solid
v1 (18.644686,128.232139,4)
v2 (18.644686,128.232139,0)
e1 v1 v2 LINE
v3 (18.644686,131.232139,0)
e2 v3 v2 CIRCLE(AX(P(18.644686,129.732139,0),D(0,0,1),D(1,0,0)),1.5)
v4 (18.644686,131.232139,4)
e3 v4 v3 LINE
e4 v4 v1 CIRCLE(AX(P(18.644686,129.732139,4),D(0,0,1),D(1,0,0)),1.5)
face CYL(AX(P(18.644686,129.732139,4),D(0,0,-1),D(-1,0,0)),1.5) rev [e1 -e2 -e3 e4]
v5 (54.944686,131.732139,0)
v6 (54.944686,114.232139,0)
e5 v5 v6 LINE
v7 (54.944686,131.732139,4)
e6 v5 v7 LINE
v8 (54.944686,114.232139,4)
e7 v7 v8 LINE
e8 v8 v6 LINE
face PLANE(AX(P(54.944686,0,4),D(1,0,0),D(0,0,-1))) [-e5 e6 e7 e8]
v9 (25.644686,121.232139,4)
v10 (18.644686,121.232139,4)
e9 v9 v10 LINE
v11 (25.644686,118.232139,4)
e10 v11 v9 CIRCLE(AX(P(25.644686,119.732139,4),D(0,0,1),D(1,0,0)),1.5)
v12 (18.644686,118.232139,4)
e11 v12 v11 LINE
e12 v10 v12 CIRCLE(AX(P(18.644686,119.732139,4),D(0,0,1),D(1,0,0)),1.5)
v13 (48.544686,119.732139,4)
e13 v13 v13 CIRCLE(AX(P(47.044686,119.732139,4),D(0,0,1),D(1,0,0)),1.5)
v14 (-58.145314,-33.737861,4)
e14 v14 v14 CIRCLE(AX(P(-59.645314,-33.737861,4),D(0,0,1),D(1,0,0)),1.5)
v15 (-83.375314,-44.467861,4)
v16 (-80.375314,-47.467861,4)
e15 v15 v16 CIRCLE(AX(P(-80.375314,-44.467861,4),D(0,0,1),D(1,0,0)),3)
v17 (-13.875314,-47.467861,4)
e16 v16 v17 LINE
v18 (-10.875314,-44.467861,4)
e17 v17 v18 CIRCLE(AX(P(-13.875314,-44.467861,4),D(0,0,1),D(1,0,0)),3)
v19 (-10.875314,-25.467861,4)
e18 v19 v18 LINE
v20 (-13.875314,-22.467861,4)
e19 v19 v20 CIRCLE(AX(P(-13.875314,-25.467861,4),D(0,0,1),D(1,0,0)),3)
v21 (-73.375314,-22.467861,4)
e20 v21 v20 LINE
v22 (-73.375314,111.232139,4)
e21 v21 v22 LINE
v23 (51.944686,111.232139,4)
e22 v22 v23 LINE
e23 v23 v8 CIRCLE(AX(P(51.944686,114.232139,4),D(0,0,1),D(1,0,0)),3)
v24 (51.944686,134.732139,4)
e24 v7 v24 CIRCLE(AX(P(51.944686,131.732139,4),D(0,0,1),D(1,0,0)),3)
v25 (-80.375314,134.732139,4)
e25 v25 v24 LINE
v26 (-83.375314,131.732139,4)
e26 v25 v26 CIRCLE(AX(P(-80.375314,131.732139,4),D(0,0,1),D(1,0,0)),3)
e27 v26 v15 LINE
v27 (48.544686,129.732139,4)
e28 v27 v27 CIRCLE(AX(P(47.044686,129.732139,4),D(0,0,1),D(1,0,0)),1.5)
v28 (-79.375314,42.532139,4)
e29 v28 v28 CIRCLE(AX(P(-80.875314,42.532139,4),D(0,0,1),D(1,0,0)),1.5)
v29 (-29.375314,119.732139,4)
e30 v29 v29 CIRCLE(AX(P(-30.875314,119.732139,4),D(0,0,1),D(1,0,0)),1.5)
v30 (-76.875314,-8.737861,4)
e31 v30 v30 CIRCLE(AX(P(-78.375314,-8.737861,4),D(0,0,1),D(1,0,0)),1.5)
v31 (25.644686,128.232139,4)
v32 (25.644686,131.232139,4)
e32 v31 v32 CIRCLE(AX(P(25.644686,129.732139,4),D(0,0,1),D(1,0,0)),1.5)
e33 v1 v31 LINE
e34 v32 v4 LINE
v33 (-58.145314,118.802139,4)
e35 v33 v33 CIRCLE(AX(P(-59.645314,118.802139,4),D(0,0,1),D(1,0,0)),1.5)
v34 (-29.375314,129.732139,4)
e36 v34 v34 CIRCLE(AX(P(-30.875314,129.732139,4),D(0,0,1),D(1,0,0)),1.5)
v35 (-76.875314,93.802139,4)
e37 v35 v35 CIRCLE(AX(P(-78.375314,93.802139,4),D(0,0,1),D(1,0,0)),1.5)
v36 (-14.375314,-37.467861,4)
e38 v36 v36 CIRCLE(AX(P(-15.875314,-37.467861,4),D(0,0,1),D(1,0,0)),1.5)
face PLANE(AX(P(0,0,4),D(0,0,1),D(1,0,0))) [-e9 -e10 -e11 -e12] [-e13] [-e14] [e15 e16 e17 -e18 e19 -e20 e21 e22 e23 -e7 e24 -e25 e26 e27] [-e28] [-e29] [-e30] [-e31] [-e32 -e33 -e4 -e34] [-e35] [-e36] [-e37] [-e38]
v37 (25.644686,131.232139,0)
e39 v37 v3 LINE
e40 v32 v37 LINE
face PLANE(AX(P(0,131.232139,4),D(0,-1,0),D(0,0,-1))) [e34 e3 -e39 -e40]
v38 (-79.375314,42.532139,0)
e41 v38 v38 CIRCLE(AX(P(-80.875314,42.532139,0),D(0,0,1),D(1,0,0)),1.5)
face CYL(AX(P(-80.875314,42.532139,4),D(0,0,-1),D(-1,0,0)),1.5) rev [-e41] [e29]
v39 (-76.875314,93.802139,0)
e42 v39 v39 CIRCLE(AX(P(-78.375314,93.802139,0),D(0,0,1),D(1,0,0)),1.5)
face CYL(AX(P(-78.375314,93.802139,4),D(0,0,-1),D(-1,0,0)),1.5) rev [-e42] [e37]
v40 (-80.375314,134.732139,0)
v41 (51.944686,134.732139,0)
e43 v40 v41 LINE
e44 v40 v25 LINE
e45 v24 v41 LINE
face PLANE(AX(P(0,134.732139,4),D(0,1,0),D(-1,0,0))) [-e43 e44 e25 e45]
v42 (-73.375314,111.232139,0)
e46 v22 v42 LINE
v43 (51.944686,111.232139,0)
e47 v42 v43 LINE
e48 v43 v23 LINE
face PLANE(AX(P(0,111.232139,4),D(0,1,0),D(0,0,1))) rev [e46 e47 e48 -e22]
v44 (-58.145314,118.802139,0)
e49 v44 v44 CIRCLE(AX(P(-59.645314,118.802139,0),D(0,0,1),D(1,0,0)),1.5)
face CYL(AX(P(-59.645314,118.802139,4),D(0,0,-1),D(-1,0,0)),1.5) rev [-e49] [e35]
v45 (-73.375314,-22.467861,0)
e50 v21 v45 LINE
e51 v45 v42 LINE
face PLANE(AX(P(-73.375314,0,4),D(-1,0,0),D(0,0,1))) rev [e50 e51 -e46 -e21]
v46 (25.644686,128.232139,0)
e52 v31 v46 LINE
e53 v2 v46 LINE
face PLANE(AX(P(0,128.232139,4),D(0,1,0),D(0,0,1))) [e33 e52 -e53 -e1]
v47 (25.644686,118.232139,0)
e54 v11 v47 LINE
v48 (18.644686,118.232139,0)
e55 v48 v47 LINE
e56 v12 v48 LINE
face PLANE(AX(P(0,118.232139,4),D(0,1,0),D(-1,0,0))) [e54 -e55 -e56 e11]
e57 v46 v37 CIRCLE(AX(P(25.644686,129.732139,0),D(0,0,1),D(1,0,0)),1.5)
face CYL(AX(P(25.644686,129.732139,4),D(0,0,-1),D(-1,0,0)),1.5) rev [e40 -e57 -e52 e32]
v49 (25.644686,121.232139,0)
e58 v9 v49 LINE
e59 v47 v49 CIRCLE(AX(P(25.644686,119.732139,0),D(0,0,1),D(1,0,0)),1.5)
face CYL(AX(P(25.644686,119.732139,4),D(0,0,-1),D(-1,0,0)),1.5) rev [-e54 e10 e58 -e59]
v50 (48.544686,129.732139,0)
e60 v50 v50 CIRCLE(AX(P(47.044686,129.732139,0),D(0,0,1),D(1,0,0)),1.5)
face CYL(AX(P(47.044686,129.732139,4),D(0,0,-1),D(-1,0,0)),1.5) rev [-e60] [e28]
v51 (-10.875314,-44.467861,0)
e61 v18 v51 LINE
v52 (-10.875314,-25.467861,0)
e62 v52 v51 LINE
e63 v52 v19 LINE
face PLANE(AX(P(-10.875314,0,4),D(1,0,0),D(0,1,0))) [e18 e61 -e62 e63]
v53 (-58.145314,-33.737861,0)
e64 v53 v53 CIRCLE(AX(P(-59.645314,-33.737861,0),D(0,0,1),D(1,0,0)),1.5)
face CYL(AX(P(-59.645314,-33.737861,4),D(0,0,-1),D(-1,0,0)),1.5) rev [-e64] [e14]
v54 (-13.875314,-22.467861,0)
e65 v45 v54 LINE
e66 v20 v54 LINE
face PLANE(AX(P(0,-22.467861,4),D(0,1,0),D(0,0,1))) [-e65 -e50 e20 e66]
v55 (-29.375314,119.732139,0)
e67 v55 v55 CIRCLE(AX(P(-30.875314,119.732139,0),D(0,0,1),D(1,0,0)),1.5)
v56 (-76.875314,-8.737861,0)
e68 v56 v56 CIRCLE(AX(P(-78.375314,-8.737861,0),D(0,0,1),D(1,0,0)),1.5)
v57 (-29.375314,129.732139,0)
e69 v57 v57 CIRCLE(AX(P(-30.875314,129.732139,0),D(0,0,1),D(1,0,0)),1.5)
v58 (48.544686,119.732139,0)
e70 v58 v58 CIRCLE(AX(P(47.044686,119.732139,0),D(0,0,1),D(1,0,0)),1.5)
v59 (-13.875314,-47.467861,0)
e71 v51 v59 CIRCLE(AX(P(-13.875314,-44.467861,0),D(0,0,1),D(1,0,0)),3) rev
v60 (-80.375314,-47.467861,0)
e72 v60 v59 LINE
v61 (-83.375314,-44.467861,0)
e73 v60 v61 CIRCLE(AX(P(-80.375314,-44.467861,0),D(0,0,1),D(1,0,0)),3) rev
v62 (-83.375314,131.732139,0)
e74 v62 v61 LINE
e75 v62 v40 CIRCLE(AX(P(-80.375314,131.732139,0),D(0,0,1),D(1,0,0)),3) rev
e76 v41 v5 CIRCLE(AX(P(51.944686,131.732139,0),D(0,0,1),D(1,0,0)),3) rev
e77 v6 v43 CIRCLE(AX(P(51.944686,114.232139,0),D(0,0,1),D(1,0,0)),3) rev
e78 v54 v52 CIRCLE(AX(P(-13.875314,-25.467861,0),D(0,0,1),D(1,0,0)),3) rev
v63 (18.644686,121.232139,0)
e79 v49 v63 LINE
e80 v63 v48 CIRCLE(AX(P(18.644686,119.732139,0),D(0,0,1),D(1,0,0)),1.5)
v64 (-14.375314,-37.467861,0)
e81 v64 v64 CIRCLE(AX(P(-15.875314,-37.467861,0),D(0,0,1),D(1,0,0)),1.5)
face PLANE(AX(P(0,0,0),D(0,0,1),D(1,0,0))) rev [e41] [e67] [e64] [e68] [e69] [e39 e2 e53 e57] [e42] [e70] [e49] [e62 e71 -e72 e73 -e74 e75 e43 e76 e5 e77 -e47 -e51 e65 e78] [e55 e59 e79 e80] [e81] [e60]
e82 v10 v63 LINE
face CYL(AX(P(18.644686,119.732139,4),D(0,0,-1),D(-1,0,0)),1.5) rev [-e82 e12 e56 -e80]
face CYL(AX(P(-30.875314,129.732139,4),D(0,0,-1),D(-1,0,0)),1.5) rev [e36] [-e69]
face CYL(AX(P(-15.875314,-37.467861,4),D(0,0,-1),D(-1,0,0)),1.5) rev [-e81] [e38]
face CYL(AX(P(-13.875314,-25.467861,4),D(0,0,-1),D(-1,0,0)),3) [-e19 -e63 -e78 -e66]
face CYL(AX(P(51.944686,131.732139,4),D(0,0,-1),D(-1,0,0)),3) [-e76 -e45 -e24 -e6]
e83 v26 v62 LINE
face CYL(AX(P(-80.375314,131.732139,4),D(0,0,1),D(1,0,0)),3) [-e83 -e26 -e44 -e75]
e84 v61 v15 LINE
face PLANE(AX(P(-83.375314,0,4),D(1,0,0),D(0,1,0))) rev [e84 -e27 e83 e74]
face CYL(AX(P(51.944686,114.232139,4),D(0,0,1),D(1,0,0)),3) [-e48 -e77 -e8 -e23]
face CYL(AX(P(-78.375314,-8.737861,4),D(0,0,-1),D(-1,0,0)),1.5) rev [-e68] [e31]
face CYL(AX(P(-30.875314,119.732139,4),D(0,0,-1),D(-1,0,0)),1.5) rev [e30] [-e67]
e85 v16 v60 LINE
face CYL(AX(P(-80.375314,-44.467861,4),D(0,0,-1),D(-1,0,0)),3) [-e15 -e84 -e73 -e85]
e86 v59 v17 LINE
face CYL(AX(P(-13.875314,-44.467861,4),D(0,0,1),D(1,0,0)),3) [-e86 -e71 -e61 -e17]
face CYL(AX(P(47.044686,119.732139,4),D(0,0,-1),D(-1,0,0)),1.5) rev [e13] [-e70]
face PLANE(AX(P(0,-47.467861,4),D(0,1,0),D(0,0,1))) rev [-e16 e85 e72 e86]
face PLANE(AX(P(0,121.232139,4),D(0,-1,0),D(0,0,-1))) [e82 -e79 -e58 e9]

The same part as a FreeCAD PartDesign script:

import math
import FreeCAD as App
import Part
import Sketcher
from FreeCAD import Vector
Q = App.Units.Quantity


def edges_at(feature, points):
    """Names of the edges that pass closest to the given points."""
    edges = feature.Shape.Edges
    near = lambda p: min(range(len(edges)), key=lambda i: edges[i].distToShape(Part.Vertex(*p))[0])
    return sorted({f"Edge{near(p) + 1}" for p in points})


def add_polygon(sketch, points):
    """Adds a closed chain of lines whose ends are joined by coincident constraints."""
    first, n = sketch.GeometryCount, len(points)
    for a, b in zip(points, points[1:] + points[:1]):
        sketch.addGeometry(Part.LineSegment(App.Vector(*a, 0), App.Vector(*b, 0)), False)
    for i in range(n):
        sketch.addConstraint(Sketcher.Constraint("Coincident", first + i, 2, first + (i + 1) % n, 1))

doc = App.newDocument("Part")
body = doc.addObject("PartDesign::Body", "Body")

sketch1 = body.newObject("Sketcher::SketchObject", "Sketch")
sketch1.AttachmentSupport = (doc.getObject("XY_Plane"), [""])
sketch1.MapMode = "FlatFace"
add_polygon(sketch1, [(-83.375314, 134.732139), (-83.375314, -47.467861), (-10.875314, -47.467861), (-10.875314, -22.467861), (-73.375314, -22.467861), (-73.375314, 111.232139), (54.944686, 111.232139), (54.944686, 134.732139)])
sketch1.addGeometry(Part.Circle(Vector(-59.645314, -33.737861, 0), Vector(0, 0, 1), 1.5), False)
sketch1.addGeometry(Part.Circle(Vector(-78.375314, -8.737861, 0), Vector(0, 0, 1), 1.5), False)
sketch1.addGeometry(Part.Circle(Vector(-80.875314, 42.532139, 0), Vector(0, 0, 1), 1.5), False)
sketch1.addGeometry(Part.Circle(Vector(-15.875314, -37.467861, 0), Vector(0, 0, 1), 1.5), False)
sketch1.addGeometry(Part.Circle(Vector(-78.375314, 93.802139, 0), Vector(0, 0, 1), 1.5), False)
sketch1.addGeometry(Part.Circle(Vector(-59.645314, 118.802139, 0), Vector(0, 0, 1), 1.5), False)
sketch1.addGeometry(Part.Circle(Vector(-30.875314, 119.732139, 0), Vector(0, 0, 1), 1.5), False)
sketch1.addGeometry(Part.Circle(Vector(-30.875314, 129.732139, 0), Vector(0, 0, 1), 1.5), False)
sketch1.addGeometry(Part.ArcOfCircle(Part.Circle(Vector(25.644686, 119.732139, 0), Vector(0, 0, 1), 1.5), math.radians(-90), math.radians(90)), False)
sketch1.addGeometry(Part.LineSegment(Vector(25.644686, 118.232139, 0), Vector(18.644686, 118.232139, 0)), False)
sketch1.addGeometry(Part.ArcOfCircle(Part.Circle(Vector(18.644686, 119.732139, 0), Vector(0, 0, 1), 1.5), math.radians(90), math.radians(270)), False)
sketch1.addGeometry(Part.LineSegment(Vector(18.644686, 121.232139, 0), Vector(25.644686, 121.232139, 0)), False)
sketch1.addGeometry(Part.LineSegment(Vector(18.644686, 131.232139, 0), Vector(25.644686, 131.232139, 0)), False)
sketch1.addGeometry(Part.ArcOfCircle(Part.Circle(Vector(25.644686, 129.732139, 0), Vector(0, 0, 1), 1.5), math.radians(-90), math.radians(90)), False)
sketch1.addGeometry(Part.LineSegment(Vector(25.644686, 128.232139, 0), Vector(18.644686, 128.232139, 0)), False)
sketch1.addGeometry(Part.ArcOfCircle(Part.Circle(Vector(18.644686, 129.732139, 0), Vector(0, 0, 1), 1.5), math.radians(90), math.radians(270)), False)
sketch1.addGeometry(Part.Circle(Vector(47.044686, 119.732139, 0), Vector(0, 0, 1), 1.5), False)
sketch1.addGeometry(Part.Circle(Vector(47.044686, 129.732139, 0), Vector(0, 0, 1), 1.5), False)
sketch1.addConstraint([
    Sketcher.Constraint("Tangent", 16, 1, 17, 1),
    Sketcher.Constraint("Tangent", 17, 2, 18, 2),
    Sketcher.Constraint("Tangent", 18, 1, 19, 1),
    Sketcher.Constraint("Tangent", 19, 2, 16, 2),
    Sketcher.Constraint("Tangent", 20, 2, 21, 2),
    Sketcher.Constraint("Tangent", 21, 1, 22, 1),
    Sketcher.Constraint("Tangent", 22, 2, 23, 2),
    Sketcher.Constraint("Tangent", 23, 1, 20, 1),
    Sketcher.Constraint("Vertical", 0),
    Sketcher.Constraint("Horizontal", 1),
    Sketcher.Constraint("Vertical", 2),
    Sketcher.Constraint("Horizontal", 3),
    Sketcher.Constraint("Vertical", 4),
    Sketcher.Constraint("Horizontal", 5),
    Sketcher.Constraint("Vertical", 6),
    Sketcher.Constraint("Horizontal", 7),
    Sketcher.Constraint("Horizontal", 17),
    Sketcher.Constraint("Horizontal", 19),
    Sketcher.Constraint("Horizontal", 20),
    Sketcher.Constraint("Horizontal", 22),
    Sketcher.Constraint("Equal", 8, 9),
    Sketcher.Constraint("Equal", 9, 10),
    Sketcher.Constraint("Equal", 10, 11),
    Sketcher.Constraint("Equal", 11, 12),
    Sketcher.Constraint("Equal", 12, 13),
    Sketcher.Constraint("Equal", 13, 14),
    Sketcher.Constraint("Equal", 14, 15),
    Sketcher.Constraint("Equal", 15, 16),
    Sketcher.Constraint("Equal", 18, 21),
    Sketcher.Constraint("Equal", 23, 24),
    Sketcher.Constraint("Equal", 24, 25),
    Sketcher.Constraint("Horizontal", 14, 3, 16, 3),
    Sketcher.Constraint("Horizontal", 15, 3, 21, 3),
    Sketcher.Constraint("Horizontal", 18, 3, 24, 3),
    Sketcher.Constraint("Horizontal", 23, 3, 25, 3),
    Sketcher.Constraint("Vertical", 9, 3, 12, 3),
    Sketcher.Constraint("Vertical", 8, 3, 13, 3),
    Sketcher.Constraint("Vertical", 14, 3, 15, 3),
    Sketcher.Constraint("Vertical", 16, 3, 21, 3),
    Sketcher.Constraint("Vertical", 18, 3, 23, 3),
    Sketcher.Constraint("Vertical", 24, 3, 25, 3),
    Sketcher.Constraint("Diameter", 8, Q("3 mm")),
    Sketcher.Constraint("DistanceX", 17, 2, 17, 1, Q("7 mm")),
    Sketcher.Constraint("DistanceY", 2, 1, 2, 2, Q("25 mm")),
    Sketcher.Constraint("DistanceX", 1, 1, 1, 2, Q("72.5 mm")),
    Sketcher.Constraint("DistanceX", 3, 2, 3, 1, Q("62.5 mm")),
    Sketcher.Constraint("DistanceY", 0, 2, 0, 1, Q("182.2 mm")),
    Sketcher.Constraint("DistanceY", 4, 1, 4, 2, Q("133.7 mm")),
    Sketcher.Constraint("DistanceY", 8, 3, 9, 3, Q("25 mm")),
    Sketcher.Constraint("DistanceX", 10, 3, 11, 3, Q("65 mm")),
    Sketcher.Constraint("DistanceY", 11, 3, 10, 3, Q("80 mm")),
    Sketcher.Constraint("DistanceY", 12, 3, 13, 3, Q("25 mm")),
    Sketcher.Constraint("DistanceX", 10, 3, 14, 3, Q("50 mm")),
    Sketcher.Constraint("DistanceY", 14, 3, 15, 3, Q("10 mm")),
    Sketcher.Constraint("DistanceX", 0, 2, 9, 3, Q("5 mm")),
    Sketcher.Constraint("DistanceY", 0, 2, 11, 3, Q("10 mm")),
    Sketcher.Constraint("DistanceX", 11, 3, 1, 2, Q("5 mm")),
    Sketcher.Constraint("DistanceY", 25, 3, 6, 2, Q("5 mm")),
    Sketcher.Constraint("DistanceX", 5, 1, 5, 2, Q("128.32 mm")),
    Sketcher.Constraint("DistanceX", 16, 3, 24, 3, Q("21.4 mm")),
    Sketcher.Constraint("DistanceX", 24, 3, 5, 2, Q("7.9 mm")),
    Sketcher.Constraint("DistanceX", 9, 3, 8, 3, Q("18.73 mm")),
    Sketcher.Constraint("DistanceY", 9, 3, 10, 3, Q("51.27 mm")),
    Sketcher.Constraint("DistanceY", 10, 3, 12, 3, Q("51.27 mm")),
    Sketcher.Constraint("DistanceY", 8, 3, -1, 1, Q("33.737861 mm")),
    Sketcher.Constraint("DistanceX", 8, 3, -1, 1, Q("59.645314 mm")),
])
pad1 = body.newObject("PartDesign::Pad", "Pad")
pad1.Profile = sketch1
pad1.Length = 4
doc.recompute()

fillet = body.newObject("PartDesign::Fillet", "Fillet")
fillet.Base = (pad1, edges_at(pad1, [
    (-10.875, -22.468, 2),
    (-10.875, -47.468, 2),
    (-83.375, -47.468, 2),
    (-83.375, 134.732, 2),
    (54.945, 134.732, 2),
    (54.945, 111.232, 2),
]))
fillet.Radius = 3

doc.recompute()
